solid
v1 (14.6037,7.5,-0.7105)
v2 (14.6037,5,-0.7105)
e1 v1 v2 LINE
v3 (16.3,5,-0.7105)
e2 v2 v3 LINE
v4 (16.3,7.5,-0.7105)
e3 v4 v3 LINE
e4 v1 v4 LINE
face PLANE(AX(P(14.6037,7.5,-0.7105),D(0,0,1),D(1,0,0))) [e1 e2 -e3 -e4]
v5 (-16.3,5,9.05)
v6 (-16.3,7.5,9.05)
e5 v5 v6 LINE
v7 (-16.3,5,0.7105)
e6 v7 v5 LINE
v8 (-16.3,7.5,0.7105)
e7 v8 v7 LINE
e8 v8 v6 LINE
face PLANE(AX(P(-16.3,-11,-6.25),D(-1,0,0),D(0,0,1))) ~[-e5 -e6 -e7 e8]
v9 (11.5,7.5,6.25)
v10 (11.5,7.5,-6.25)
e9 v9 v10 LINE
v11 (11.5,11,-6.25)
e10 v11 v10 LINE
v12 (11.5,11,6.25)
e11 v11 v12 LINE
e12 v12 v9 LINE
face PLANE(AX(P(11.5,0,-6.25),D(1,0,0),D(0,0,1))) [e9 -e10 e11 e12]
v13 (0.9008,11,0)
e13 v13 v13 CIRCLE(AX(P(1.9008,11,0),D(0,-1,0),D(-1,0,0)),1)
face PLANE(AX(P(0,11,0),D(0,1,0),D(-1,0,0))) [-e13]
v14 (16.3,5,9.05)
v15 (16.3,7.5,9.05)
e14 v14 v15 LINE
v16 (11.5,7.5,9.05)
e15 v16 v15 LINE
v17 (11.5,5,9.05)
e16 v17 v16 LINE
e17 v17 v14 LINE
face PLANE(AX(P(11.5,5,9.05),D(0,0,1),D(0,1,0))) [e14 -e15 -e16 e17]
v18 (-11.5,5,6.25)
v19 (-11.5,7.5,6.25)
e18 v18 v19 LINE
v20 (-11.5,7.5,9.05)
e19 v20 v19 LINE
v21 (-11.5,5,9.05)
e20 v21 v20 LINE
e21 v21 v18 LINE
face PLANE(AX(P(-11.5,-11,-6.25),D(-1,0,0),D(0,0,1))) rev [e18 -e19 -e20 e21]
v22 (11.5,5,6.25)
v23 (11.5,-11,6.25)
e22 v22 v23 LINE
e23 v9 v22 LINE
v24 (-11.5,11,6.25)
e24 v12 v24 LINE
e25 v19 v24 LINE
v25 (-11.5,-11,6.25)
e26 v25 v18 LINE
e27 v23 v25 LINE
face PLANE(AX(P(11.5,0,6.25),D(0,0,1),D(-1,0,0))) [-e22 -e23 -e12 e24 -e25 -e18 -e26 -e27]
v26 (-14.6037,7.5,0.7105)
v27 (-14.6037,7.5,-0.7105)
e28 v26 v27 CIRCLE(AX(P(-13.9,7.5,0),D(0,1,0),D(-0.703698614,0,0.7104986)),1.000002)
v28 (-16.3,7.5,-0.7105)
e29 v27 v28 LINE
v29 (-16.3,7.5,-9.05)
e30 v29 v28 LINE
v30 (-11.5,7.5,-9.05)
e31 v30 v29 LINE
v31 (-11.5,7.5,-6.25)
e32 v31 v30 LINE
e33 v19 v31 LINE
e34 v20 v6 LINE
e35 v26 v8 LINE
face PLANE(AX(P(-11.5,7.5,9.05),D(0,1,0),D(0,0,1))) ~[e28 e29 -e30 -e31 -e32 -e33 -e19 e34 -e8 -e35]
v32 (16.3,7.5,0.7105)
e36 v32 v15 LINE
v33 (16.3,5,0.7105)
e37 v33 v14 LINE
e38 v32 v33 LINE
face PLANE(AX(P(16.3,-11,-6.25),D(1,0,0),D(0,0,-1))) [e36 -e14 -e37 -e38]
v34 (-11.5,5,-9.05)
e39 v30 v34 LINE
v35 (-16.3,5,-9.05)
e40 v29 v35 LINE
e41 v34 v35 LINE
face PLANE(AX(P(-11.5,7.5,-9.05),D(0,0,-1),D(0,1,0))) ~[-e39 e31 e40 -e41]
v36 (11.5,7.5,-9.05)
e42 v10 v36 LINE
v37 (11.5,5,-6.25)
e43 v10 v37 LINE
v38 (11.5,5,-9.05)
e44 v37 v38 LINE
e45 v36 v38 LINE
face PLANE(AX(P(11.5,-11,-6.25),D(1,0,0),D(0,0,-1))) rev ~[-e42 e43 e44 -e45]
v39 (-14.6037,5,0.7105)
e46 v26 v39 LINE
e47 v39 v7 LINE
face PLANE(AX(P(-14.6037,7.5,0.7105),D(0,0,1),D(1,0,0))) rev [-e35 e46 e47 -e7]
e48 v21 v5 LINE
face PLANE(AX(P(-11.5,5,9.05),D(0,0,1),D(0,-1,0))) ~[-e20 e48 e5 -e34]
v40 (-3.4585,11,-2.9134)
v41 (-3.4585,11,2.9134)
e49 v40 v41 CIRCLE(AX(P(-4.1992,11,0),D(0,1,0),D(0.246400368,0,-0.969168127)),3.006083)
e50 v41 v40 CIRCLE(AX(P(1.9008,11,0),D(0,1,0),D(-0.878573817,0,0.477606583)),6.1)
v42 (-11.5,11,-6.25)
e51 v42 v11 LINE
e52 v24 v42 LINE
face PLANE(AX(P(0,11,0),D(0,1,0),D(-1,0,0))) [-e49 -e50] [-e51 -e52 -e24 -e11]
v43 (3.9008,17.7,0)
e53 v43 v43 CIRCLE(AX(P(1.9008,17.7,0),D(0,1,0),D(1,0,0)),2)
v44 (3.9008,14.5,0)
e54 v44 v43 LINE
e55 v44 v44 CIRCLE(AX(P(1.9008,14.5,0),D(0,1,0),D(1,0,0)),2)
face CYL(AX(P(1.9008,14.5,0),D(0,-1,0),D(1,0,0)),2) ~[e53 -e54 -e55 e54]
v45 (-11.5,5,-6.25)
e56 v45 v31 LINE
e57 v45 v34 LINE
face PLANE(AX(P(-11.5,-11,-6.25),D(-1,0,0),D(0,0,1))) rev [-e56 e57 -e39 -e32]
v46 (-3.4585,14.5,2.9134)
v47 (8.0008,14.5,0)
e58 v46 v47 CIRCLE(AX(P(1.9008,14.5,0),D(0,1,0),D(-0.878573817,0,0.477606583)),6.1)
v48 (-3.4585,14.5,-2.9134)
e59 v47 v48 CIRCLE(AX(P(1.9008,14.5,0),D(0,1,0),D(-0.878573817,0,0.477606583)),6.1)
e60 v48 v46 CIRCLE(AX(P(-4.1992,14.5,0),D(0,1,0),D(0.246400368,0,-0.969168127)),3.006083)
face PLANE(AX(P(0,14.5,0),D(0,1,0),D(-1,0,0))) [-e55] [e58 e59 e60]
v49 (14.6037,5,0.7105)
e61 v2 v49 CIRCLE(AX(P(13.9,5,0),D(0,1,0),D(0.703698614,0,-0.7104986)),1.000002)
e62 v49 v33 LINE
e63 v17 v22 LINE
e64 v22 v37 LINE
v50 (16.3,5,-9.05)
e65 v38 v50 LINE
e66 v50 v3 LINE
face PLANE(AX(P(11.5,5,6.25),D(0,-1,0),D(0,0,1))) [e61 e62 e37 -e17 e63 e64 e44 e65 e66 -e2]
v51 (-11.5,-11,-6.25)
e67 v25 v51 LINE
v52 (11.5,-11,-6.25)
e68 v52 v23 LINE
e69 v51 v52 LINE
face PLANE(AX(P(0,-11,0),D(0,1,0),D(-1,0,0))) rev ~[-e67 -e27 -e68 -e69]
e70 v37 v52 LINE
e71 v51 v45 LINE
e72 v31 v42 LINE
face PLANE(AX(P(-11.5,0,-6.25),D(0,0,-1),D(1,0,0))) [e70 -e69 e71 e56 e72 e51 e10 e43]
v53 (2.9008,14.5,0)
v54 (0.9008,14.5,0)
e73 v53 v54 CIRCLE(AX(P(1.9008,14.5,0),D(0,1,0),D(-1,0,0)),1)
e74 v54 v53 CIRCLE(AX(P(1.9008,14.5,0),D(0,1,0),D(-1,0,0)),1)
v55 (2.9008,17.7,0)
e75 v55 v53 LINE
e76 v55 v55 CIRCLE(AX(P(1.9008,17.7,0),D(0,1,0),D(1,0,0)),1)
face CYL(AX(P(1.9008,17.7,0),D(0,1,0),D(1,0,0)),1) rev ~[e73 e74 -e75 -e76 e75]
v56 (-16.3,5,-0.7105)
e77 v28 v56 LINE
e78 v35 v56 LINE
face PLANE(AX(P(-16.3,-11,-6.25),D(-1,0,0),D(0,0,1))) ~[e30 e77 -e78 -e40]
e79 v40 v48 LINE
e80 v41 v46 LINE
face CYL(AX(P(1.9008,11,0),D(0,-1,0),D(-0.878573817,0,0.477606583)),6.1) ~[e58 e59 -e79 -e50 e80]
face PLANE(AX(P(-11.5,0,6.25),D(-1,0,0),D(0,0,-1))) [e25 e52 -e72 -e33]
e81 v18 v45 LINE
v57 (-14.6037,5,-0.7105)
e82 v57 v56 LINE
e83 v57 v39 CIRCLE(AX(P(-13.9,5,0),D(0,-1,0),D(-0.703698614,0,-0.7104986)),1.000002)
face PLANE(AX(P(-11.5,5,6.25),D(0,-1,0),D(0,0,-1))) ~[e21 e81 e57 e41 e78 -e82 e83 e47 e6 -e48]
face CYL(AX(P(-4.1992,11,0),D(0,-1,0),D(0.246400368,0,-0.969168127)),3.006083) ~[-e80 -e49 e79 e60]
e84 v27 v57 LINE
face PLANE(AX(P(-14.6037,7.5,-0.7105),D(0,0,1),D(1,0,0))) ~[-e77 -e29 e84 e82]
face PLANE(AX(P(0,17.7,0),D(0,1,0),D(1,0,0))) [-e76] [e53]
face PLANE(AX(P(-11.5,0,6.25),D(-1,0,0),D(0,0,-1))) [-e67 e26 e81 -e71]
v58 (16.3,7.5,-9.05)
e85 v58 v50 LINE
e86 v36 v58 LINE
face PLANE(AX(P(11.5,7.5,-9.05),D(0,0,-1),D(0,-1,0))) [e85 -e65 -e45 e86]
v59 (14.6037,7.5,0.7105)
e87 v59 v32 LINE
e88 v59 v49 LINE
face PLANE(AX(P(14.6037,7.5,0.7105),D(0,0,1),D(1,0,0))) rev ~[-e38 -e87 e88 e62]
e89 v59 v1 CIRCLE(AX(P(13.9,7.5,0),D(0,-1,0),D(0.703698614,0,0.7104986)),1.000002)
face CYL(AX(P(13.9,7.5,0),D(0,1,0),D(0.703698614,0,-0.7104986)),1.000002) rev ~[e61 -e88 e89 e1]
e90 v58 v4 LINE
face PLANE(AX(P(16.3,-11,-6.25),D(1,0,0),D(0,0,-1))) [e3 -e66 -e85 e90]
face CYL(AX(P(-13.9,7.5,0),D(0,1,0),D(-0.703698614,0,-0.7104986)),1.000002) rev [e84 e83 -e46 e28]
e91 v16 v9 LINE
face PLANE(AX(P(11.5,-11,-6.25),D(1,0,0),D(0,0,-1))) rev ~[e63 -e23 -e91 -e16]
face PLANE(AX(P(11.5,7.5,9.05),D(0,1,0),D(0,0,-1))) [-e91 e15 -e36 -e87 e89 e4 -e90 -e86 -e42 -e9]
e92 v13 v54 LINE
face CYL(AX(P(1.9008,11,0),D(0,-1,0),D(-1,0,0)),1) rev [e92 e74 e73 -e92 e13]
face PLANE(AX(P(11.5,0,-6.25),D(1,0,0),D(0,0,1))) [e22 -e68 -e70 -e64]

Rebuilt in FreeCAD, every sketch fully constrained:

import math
import FreeCAD as App
import Part
import Sketcher

V = App.Vector


def add_polygon(sketch, points):
    """Adds a closed chain of lines whose ends are joined by coincident constraints."""
    first, n = sketch.GeometryCount, len(points)
    for a, b in zip(points, points[1:] + points[:1]):
        sketch.addGeometry(Part.LineSegment(App.Vector(*a, 0), App.Vector(*b, 0)), False)
    for i in range(n):
        sketch.addConstraint(Sketcher.Constraint("Coincident", first + i, 2, first + (i + 1) % n, 1))

doc = App.newDocument("Part")
body = doc.addObject("PartDesign::Body", "Body")

sketch1 = doc.addObject("Sketcher::SketchObject", "Sketch")
body.addObject(sketch1)
sketch1.AttachmentSupport = (doc.XZ_Plane, [""])
sketch1.MapMode = "FlatFace"
add_polygon(sketch1, [(11.5, -6.25), (-11.5, -6.25), (-11.5, 6.25), (11.5, 6.25)])
sketch1.addConstraint([
    Sketcher.Constraint("Horizontal", 0),
    Sketcher.Constraint("Vertical", 1),
    Sketcher.Constraint("Horizontal", 2),
    Sketcher.Constraint("Vertical", 3),
    Sketcher.Constraint("Symmetric", 0, 2, 2, 2, -1, 1),
    Sketcher.Constraint("DistanceX", 0, 2, 0, 1, 23.0),
    Sketcher.Constraint("DistanceY", 1, 1, 1, 2, 12.5),
])
pad1 = doc.addObject("PartDesign::Pad", "Pad")
body.addObject(pad1)
pad1.Profile = sketch1
pad1.Length = 22
pad1.Midplane = True

sketch2 = doc.addObject("Sketcher::SketchObject", "Sketch001")
body.addObject(sketch2)
sketch2.AttachmentSupport = (doc.YZ_Plane, [""])
sketch2.MapMode = "FlatFace"
sketch2.AttachmentOffset = App.Placement(V(0, 0, 11.5), App.Rotation())
add_polygon(sketch2, [(5, 9.05), (5, -9.05), (7.5, -9.05), (7.5, 9.05)])
sketch2.addConstraint([
    Sketcher.Constraint("Vertical", 0),
    Sketcher.Constraint("Horizontal", 1),
    Sketcher.Constraint("Vertical", 2),
    Sketcher.Constraint("Horizontal", 3),
    Sketcher.Constraint("DistanceX", 1, 1, 1, 2, 2.5),
    Sketcher.Constraint("DistanceY", 0, 2, 0, 1, 18.1),
    Sketcher.Constraint("DistanceX", -1, 1, 0, 2, 5.0),
    Sketcher.Constraint("DistanceY", 0, 2, -1, 1, 9.05),
])
pad2 = doc.addObject("PartDesign::Pad", "Pad001")
body.addObject(pad2)
pad2.Profile = sketch2
pad2.Length = 4.8
doc.recompute()

mirrored = doc.addObject("PartDesign::Mirrored", "Mirrored")
body.addObject(mirrored)
mirrored.Originals = [pad2]
mirrored.MirrorPlane = (doc.YZ_Plane, [""])
body.Tip = mirrored

sketch3 = doc.addObject("Sketcher::SketchObject", "Sketch002")
body.addObject(sketch3)
sketch3.AttachmentSupport = (doc.XZ_Plane, [""])
sketch3.MapMode = "FlatFace"
sketch3.AttachmentOffset = App.Placement(V(0, 0, -11), App.Rotation())
sketch3.addGeometry([
    Part.ArcOfCircle(Part.Circle(V(1.9008, 0, 0), V(0, 0, 1), 6.1), math.radians(0), math.radians(151.4708)),
    Part.ArcOfCircle(Part.Circle(V(1.9008, 0, 0), V(0, 0, 1), 6.1), math.radians(-151.4708), math.radians(0)),
    Part.ArcOfCircle(Part.Circle(V(-4.1992, 0, 0), V(0, 0, 1), 3.006083), math.radians(75.735394), math.radians(284.264606)),
    Part.Circle(V(1.9008, 0, 0), V(0, 0, 1), 1),
], False)
sketch3.addConstraint([
    Sketcher.Constraint("Tangent", 0, 1, 1, 2),
    Sketcher.Constraint("Coincident", 1, 1, 2, 2),
    Sketcher.Constraint("Coincident", 2, 1, 0, 2),
    Sketcher.Constraint("Coincident", 3, 3, 0, 3),
    Sketcher.Constraint("Equal", 0, 1),
    Sketcher.Constraint("Symmetric", 1, 1, 2, 1, -1),
    Sketcher.Constraint("PointOnObject", 0, 1, -1),
    Sketcher.Constraint("Diameter", 3, 2.0),
    Sketcher.Constraint("Radius", 0, 6.1),
    Sketcher.Constraint("DistanceX", 2, 3, 0, 1, 12.2),
    Sketcher.Constraint("Radius", 2, 3.006),
    Sketcher.Constraint("DistanceX", -1, 1, 0, 3, 1.9008),
])
pad3 = doc.addObject("PartDesign::Pad", "Pad002")
body.addObject(pad3)
pad3.Profile = sketch3
pad3.Length = 3.5
pad3.Reversed = True

sketch4 = doc.addObject("Sketcher::SketchObject", "Sketch003")
body.addObject(sketch4)
sketch4.AttachmentSupport = (doc.XZ_Plane, [""])
sketch4.MapMode = "FlatFace"
sketch4.AttachmentOffset = App.Placement(V(0, 0, -14.5), App.Rotation())
sketch4.addGeometry(Part.Circle(V(1.9008, 0, 0), V(0, 0, 1), 2), False)
sketch4.addConstraint([
    Sketcher.Constraint("PointOnObject", 0, 3, -1),
    Sketcher.Constraint("Diameter", 0, 4.0),
    Sketcher.Constraint("DistanceX", -1, 1, 0, 3, 1.9008),
])
pad4 = doc.addObject("PartDesign::Pad", "Pad003")
body.addObject(pad4)
pad4.Profile = sketch4
pad4.Length = 3.2
pad4.Reversed = True

sketch5 = doc.addObject("Sketcher::SketchObject", "Sketch004")
body.addObject(sketch5)
sketch5.AttachmentSupport = (doc.XZ_Plane, [""])
sketch5.MapMode = "FlatFace"
sketch5.AttachmentOffset = App.Placement(V(0, 0, -17.7), App.Rotation())
sketch5.addGeometry(Part.Circle(V(1.9008, 0, 0), V(0, 0, 1), 1), False)
sketch5.addConstraint([
    Sketcher.Constraint("PointOnObject", 0, 3, -1),
    Sketcher.Constraint("Diameter", 0, 2.0),
    Sketcher.Constraint("DistanceX", -1, 1, 0, 3, 1.9008),
])
pocket1 = doc.addObject("PartDesign::Pocket", "Pocket")
body.addObject(pocket1)
pocket1.Profile = sketch5
pocket1.Length = 3.2
pocket1.Reversed = True

sketch6 = doc.addObject("Sketcher::SketchObject", "Sketch005")
body.addObject(sketch6)
sketch6.AttachmentSupport = (doc.XZ_Plane, [""])
sketch6.MapMode = "FlatFace"
sketch6.AttachmentOffset = App.Placement(V(0, 0, -7.5), App.Rotation())
sketch6.addGeometry([
    Part.ArcOfCircle(Part.Circle(V(13.9, 0, 0), V(0, 0, 1), 1.000002), math.radians(45.275497), math.radians(314.724503)),
    Part.LineSegment(V(14.6037, 0.7105, 0), V(16.3, 0.7105, 0)),
    Part.LineSegment(V(16.3, 0.7105, 0), V(16.3, -0.7105, 0)),
    Part.LineSegment(V(16.3, -0.7105, 0), V(14.6037, -0.7105, 0)),
], False)
sketch6.addConstraint([
    Sketcher.Constraint("Coincident", 0, 1, 1, 1),
    Sketcher.Constraint("Coincident", 1, 2, 2, 1),
    Sketcher.Constraint("Coincident", 2, 2, 3, 1),
    Sketcher.Constraint("Coincident", 3, 2, 0, 2),
    Sketcher.Constraint("Horizontal", 1),
    Sketcher.Constraint("Vertical", 2),
    Sketcher.Constraint("Horizontal", 3),
    Sketcher.Constraint("Symmetric", 0, 1, 3, 2, -1),
    Sketcher.Constraint("Radius", 0, 1.0),
    Sketcher.Constraint("DistanceX", -1, 1, 0, 3, 13.9),
    Sketcher.Constraint("DistanceX", -1, 1, 1, 2, 16.3),
    Sketcher.Constraint("DistanceY", 2, 2, 2, 1, 1.421),
])
pocket2 = doc.addObject("PartDesign::Pocket", "Pocket001")
body.addObject(pocket2)
pocket2.Profile = sketch6
pocket2.Length = 2.5
pocket2.Reversed = True
doc.recompute()

mirrored2 = doc.addObject("PartDesign::Mirrored", "Mirrored001")
body.addObject(mirrored2)
mirrored2.Originals = [pocket2]
mirrored2.MirrorPlane = (doc.YZ_Plane, [""])
body.Tip = mirrored2

doc.recompute()
